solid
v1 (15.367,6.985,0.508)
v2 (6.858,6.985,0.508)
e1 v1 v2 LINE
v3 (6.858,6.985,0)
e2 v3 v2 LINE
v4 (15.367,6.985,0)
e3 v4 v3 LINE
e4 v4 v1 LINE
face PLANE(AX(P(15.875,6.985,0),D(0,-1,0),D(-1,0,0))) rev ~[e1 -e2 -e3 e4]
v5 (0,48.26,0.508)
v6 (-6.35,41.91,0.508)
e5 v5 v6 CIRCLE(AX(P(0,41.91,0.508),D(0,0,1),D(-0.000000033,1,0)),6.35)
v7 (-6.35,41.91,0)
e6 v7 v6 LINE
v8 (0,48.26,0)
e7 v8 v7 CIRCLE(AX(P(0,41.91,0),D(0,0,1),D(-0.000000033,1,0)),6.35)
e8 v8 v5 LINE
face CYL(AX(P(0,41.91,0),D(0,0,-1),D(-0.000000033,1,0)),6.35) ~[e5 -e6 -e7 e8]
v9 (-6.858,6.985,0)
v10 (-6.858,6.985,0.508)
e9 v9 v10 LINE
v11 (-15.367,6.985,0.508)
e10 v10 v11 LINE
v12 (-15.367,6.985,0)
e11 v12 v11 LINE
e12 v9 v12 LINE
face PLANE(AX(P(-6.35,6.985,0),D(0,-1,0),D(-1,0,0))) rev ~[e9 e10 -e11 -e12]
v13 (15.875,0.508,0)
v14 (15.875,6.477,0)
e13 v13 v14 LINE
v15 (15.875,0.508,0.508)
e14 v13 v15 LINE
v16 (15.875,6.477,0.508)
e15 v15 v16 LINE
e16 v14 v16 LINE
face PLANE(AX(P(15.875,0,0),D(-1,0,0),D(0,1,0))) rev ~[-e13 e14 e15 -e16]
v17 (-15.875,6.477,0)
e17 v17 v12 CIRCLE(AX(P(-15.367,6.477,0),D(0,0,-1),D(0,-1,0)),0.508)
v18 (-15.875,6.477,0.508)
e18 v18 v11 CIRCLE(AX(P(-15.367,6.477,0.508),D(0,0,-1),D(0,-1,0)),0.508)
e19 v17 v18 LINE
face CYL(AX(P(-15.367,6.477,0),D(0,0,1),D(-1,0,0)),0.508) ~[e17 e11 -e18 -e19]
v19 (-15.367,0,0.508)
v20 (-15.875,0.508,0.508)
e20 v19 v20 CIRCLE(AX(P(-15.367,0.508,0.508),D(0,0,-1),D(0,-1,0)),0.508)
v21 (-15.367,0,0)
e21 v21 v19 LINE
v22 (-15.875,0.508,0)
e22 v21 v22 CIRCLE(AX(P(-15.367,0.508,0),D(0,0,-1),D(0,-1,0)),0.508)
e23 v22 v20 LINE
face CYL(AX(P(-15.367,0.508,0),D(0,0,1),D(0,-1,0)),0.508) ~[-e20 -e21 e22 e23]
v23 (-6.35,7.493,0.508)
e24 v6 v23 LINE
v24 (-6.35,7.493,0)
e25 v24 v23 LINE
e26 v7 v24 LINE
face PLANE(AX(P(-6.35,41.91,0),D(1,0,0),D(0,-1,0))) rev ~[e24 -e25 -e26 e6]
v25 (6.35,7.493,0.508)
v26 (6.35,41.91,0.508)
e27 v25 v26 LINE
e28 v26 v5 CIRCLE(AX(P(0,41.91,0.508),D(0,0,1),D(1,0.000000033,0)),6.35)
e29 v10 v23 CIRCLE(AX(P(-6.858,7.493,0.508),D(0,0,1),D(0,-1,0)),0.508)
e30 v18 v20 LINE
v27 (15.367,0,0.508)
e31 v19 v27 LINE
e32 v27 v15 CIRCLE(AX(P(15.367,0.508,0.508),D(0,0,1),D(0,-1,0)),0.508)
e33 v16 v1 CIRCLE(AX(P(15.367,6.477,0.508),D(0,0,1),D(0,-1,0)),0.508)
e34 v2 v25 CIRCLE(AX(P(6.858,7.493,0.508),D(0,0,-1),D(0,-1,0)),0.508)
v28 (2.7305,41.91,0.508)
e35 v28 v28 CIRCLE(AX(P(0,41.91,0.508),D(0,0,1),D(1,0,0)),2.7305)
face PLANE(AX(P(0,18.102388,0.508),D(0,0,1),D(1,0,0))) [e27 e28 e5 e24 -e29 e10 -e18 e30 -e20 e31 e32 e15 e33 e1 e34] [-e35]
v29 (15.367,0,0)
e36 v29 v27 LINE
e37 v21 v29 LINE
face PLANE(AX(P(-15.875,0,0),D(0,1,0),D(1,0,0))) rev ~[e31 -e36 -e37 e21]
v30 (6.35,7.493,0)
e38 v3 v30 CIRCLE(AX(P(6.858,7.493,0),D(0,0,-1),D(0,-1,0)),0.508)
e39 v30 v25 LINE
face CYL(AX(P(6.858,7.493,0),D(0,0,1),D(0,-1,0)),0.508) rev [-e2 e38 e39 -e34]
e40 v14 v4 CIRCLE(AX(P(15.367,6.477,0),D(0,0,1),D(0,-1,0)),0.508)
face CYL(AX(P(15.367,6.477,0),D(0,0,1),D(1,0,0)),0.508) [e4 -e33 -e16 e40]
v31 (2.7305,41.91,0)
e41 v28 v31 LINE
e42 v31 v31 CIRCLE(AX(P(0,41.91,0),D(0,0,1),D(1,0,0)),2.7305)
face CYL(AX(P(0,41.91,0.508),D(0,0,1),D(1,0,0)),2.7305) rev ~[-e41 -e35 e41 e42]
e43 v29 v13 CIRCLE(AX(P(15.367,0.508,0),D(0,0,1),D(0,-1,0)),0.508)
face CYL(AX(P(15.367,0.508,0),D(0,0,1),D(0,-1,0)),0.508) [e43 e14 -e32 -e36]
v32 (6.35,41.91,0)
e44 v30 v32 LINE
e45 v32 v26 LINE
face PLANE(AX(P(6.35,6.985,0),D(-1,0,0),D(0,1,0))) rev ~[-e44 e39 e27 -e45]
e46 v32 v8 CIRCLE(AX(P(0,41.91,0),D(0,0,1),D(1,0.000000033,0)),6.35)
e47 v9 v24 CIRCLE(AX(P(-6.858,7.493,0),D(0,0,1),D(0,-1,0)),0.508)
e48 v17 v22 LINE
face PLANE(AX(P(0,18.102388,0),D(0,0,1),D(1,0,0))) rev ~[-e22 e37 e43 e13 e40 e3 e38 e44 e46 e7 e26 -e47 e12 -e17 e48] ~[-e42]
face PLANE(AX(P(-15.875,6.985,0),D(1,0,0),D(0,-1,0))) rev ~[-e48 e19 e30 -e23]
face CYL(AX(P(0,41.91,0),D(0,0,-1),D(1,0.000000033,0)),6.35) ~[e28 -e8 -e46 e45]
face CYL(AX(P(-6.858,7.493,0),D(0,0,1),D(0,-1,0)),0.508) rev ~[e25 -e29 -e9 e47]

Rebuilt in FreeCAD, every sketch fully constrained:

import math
import FreeCAD as App
import Part
import Sketcher
from FreeCAD import Vector
Q = App.Units.Quantity


def edges_at(feature, points):
    """Names of the edges that pass closest to the given points."""
    edges = feature.Shape.Edges
    near = lambda p: min(range(len(edges)), key=lambda i: edges[i].distToShape(Part.Vertex(*p))[0])
    return sorted({f"Edge{near(p) + 1}" for p in points})

doc = App.newDocument("Part")
body = doc.addObject("PartDesign::Body", "Body")

# Sketch on XY plane
sketch1 = doc.addObject("Sketcher::SketchObject", "Sketch")
body.addObject(sketch1)
sketch1.AttachmentSupport = (doc.XY_Plane, [""])
sketch1.MapMode = "FlatFace"
sketch1.addGeometry(Part.LineSegment(Vector(-16, 0, 0), Vector(16, 0, 0)), False)
sketch1.addGeometry(Part.LineSegment(Vector(16, 0, 0), Vector(16, 7, 0)), False)
sketch1.addGeometry(Part.LineSegment(Vector(16, 7, 0), Vector(6, 7, 0)), False)
sketch1.addGeometry(Part.LineSegment(Vector(6, 7, 0), Vector(6, 42, 0)), False)
sketch1.addGeometry(Part.ArcOfCircle(Part.Circle(Vector(0, 42, 0), Vector(0, 0, 1), 6), math.radians(0), math.radians(90)), False)
sketch1.addGeometry(Part.ArcOfCircle(Part.Circle(Vector(0, 42, 0), Vector(0, 0, 1), 6), math.radians(90), math.radians(180)), False)
sketch1.addGeometry(Part.LineSegment(Vector(-6, 42, 0), Vector(-6, 7, 0)), False)
sketch1.addGeometry(Part.LineSegment(Vector(-6, 7, 0), Vector(-16, 7, 0)), False)
sketch1.addGeometry(Part.LineSegment(Vector(-16, 7, 0), Vector(-16, 0, 0)), False)
sketch1.addConstraint(Sketcher.Constraint("Coincident", 0, 2, 1, 1))
sketch1.addConstraint(Sketcher.Constraint("Coincident", 1, 2, 2, 1))
sketch1.addConstraint(Sketcher.Constraint("Coincident", 2, 2, 3, 1))
sketch1.addConstraint(Sketcher.Constraint("Tangent", 3, 2, 4, 1))
sketch1.addConstraint(Sketcher.Constraint("Tangent", 4, 2, 5, 1))
sketch1.addConstraint(Sketcher.Constraint("Tangent", 5, 2, 6, 1))
sketch1.addConstraint(Sketcher.Constraint("Coincident", 6, 2, 7, 1))
sketch1.addConstraint(Sketcher.Constraint("Coincident", 7, 2, 8, 1))
sketch1.addConstraint(Sketcher.Constraint("Coincident", 8, 2, 0, 1))
sketch1.addConstraint(Sketcher.Constraint("Horizontal", 0))
sketch1.addConstraint(Sketcher.Constraint("Vertical", 1))
sketch1.addConstraint(Sketcher.Constraint("Horizontal", 2))
sketch1.addConstraint(Sketcher.Constraint("Vertical", 3))
sketch1.addConstraint(Sketcher.Constraint("Vertical", 6))
sketch1.addConstraint(Sketcher.Constraint("Horizontal", 7))
sketch1.addConstraint(Sketcher.Constraint("Vertical", 8))
sketch1.addConstraint(Sketcher.Constraint("Equal", 4, 5))
sketch1.addConstraint(Sketcher.Constraint("Symmetric", 0, 2, 8, 2, -1, 1))
sketch1.addConstraint(Sketcher.Constraint("Symmetric", 2, 2, 6, 2, -2))
sketch1.addConstraint(Sketcher.Constraint("PointOnObject", 4, 2, -2))
sketch1.addConstraint(Sketcher.Constraint("Radius", 4, Q("0.25 in")))
sketch1.addConstraint(Sketcher.Constraint("DistanceX", 0, 1, 0, 2, Q("1.25 in")))
sketch1.addConstraint(Sketcher.Constraint("DistanceY", -1, 1, 4, 2, Q("1.9 in")))
sketch1.addConstraint(Sketcher.Constraint("DistanceY", 1, 1, 1, 2, Q("0.275 in")))
pad1 = doc.addObject("PartDesign::Pad", "Pad")
body.addObject(pad1)
pad1.Profile = sketch1
pad1.Length = Q("0.02 in")

# Sketch on XY plane
sketch2 = doc.addObject("Sketcher::SketchObject", "Sketch001")
body.addObject(sketch2)
sketch2.AttachmentSupport = (doc.XY_Plane, [""])
sketch2.MapMode = "FlatFace"
sketch2.AttachmentOffset = App.Placement(Vector(0, 0, 0.02 * 25.4), App.Rotation())
sketch2.addGeometry(Part.Circle(Vector(0, 41.9, 0), Vector(0, 0, 1), 2.7), False)
sketch2.addConstraint(Sketcher.Constraint("PointOnObject", 0, 3, -2))
sketch2.addConstraint(Sketcher.Constraint("Diameter", 0, Q("0.215 in")))
sketch2.addConstraint(Sketcher.Constraint("DistanceY", -1, 1, 0, 3, Q("1.65 in")))
pocket1 = doc.addObject("PartDesign::Pocket", "Pocket")
body.addObject(pocket1)
pocket1.Profile = sketch2
pocket1.Type = "ThroughAll"
doc.recompute()

fillet = doc.addObject("PartDesign::Fillet", "Fillet")
body.addObject(fillet)
fillet.Base = (pocket1, edges_at(pocket1, [
    (-15.875, 0, 0.254),
    (-15.875, 6.985, 0.254),
    (15.875, 6.985, 0.254),
    (15.875, 0, 0.254),
    (6.35, 6.985, 0.254),
    (-6.35, 6.985, 0.254),
]))
fillet.Radius = Q("0.02 in")

doc.recompute()
